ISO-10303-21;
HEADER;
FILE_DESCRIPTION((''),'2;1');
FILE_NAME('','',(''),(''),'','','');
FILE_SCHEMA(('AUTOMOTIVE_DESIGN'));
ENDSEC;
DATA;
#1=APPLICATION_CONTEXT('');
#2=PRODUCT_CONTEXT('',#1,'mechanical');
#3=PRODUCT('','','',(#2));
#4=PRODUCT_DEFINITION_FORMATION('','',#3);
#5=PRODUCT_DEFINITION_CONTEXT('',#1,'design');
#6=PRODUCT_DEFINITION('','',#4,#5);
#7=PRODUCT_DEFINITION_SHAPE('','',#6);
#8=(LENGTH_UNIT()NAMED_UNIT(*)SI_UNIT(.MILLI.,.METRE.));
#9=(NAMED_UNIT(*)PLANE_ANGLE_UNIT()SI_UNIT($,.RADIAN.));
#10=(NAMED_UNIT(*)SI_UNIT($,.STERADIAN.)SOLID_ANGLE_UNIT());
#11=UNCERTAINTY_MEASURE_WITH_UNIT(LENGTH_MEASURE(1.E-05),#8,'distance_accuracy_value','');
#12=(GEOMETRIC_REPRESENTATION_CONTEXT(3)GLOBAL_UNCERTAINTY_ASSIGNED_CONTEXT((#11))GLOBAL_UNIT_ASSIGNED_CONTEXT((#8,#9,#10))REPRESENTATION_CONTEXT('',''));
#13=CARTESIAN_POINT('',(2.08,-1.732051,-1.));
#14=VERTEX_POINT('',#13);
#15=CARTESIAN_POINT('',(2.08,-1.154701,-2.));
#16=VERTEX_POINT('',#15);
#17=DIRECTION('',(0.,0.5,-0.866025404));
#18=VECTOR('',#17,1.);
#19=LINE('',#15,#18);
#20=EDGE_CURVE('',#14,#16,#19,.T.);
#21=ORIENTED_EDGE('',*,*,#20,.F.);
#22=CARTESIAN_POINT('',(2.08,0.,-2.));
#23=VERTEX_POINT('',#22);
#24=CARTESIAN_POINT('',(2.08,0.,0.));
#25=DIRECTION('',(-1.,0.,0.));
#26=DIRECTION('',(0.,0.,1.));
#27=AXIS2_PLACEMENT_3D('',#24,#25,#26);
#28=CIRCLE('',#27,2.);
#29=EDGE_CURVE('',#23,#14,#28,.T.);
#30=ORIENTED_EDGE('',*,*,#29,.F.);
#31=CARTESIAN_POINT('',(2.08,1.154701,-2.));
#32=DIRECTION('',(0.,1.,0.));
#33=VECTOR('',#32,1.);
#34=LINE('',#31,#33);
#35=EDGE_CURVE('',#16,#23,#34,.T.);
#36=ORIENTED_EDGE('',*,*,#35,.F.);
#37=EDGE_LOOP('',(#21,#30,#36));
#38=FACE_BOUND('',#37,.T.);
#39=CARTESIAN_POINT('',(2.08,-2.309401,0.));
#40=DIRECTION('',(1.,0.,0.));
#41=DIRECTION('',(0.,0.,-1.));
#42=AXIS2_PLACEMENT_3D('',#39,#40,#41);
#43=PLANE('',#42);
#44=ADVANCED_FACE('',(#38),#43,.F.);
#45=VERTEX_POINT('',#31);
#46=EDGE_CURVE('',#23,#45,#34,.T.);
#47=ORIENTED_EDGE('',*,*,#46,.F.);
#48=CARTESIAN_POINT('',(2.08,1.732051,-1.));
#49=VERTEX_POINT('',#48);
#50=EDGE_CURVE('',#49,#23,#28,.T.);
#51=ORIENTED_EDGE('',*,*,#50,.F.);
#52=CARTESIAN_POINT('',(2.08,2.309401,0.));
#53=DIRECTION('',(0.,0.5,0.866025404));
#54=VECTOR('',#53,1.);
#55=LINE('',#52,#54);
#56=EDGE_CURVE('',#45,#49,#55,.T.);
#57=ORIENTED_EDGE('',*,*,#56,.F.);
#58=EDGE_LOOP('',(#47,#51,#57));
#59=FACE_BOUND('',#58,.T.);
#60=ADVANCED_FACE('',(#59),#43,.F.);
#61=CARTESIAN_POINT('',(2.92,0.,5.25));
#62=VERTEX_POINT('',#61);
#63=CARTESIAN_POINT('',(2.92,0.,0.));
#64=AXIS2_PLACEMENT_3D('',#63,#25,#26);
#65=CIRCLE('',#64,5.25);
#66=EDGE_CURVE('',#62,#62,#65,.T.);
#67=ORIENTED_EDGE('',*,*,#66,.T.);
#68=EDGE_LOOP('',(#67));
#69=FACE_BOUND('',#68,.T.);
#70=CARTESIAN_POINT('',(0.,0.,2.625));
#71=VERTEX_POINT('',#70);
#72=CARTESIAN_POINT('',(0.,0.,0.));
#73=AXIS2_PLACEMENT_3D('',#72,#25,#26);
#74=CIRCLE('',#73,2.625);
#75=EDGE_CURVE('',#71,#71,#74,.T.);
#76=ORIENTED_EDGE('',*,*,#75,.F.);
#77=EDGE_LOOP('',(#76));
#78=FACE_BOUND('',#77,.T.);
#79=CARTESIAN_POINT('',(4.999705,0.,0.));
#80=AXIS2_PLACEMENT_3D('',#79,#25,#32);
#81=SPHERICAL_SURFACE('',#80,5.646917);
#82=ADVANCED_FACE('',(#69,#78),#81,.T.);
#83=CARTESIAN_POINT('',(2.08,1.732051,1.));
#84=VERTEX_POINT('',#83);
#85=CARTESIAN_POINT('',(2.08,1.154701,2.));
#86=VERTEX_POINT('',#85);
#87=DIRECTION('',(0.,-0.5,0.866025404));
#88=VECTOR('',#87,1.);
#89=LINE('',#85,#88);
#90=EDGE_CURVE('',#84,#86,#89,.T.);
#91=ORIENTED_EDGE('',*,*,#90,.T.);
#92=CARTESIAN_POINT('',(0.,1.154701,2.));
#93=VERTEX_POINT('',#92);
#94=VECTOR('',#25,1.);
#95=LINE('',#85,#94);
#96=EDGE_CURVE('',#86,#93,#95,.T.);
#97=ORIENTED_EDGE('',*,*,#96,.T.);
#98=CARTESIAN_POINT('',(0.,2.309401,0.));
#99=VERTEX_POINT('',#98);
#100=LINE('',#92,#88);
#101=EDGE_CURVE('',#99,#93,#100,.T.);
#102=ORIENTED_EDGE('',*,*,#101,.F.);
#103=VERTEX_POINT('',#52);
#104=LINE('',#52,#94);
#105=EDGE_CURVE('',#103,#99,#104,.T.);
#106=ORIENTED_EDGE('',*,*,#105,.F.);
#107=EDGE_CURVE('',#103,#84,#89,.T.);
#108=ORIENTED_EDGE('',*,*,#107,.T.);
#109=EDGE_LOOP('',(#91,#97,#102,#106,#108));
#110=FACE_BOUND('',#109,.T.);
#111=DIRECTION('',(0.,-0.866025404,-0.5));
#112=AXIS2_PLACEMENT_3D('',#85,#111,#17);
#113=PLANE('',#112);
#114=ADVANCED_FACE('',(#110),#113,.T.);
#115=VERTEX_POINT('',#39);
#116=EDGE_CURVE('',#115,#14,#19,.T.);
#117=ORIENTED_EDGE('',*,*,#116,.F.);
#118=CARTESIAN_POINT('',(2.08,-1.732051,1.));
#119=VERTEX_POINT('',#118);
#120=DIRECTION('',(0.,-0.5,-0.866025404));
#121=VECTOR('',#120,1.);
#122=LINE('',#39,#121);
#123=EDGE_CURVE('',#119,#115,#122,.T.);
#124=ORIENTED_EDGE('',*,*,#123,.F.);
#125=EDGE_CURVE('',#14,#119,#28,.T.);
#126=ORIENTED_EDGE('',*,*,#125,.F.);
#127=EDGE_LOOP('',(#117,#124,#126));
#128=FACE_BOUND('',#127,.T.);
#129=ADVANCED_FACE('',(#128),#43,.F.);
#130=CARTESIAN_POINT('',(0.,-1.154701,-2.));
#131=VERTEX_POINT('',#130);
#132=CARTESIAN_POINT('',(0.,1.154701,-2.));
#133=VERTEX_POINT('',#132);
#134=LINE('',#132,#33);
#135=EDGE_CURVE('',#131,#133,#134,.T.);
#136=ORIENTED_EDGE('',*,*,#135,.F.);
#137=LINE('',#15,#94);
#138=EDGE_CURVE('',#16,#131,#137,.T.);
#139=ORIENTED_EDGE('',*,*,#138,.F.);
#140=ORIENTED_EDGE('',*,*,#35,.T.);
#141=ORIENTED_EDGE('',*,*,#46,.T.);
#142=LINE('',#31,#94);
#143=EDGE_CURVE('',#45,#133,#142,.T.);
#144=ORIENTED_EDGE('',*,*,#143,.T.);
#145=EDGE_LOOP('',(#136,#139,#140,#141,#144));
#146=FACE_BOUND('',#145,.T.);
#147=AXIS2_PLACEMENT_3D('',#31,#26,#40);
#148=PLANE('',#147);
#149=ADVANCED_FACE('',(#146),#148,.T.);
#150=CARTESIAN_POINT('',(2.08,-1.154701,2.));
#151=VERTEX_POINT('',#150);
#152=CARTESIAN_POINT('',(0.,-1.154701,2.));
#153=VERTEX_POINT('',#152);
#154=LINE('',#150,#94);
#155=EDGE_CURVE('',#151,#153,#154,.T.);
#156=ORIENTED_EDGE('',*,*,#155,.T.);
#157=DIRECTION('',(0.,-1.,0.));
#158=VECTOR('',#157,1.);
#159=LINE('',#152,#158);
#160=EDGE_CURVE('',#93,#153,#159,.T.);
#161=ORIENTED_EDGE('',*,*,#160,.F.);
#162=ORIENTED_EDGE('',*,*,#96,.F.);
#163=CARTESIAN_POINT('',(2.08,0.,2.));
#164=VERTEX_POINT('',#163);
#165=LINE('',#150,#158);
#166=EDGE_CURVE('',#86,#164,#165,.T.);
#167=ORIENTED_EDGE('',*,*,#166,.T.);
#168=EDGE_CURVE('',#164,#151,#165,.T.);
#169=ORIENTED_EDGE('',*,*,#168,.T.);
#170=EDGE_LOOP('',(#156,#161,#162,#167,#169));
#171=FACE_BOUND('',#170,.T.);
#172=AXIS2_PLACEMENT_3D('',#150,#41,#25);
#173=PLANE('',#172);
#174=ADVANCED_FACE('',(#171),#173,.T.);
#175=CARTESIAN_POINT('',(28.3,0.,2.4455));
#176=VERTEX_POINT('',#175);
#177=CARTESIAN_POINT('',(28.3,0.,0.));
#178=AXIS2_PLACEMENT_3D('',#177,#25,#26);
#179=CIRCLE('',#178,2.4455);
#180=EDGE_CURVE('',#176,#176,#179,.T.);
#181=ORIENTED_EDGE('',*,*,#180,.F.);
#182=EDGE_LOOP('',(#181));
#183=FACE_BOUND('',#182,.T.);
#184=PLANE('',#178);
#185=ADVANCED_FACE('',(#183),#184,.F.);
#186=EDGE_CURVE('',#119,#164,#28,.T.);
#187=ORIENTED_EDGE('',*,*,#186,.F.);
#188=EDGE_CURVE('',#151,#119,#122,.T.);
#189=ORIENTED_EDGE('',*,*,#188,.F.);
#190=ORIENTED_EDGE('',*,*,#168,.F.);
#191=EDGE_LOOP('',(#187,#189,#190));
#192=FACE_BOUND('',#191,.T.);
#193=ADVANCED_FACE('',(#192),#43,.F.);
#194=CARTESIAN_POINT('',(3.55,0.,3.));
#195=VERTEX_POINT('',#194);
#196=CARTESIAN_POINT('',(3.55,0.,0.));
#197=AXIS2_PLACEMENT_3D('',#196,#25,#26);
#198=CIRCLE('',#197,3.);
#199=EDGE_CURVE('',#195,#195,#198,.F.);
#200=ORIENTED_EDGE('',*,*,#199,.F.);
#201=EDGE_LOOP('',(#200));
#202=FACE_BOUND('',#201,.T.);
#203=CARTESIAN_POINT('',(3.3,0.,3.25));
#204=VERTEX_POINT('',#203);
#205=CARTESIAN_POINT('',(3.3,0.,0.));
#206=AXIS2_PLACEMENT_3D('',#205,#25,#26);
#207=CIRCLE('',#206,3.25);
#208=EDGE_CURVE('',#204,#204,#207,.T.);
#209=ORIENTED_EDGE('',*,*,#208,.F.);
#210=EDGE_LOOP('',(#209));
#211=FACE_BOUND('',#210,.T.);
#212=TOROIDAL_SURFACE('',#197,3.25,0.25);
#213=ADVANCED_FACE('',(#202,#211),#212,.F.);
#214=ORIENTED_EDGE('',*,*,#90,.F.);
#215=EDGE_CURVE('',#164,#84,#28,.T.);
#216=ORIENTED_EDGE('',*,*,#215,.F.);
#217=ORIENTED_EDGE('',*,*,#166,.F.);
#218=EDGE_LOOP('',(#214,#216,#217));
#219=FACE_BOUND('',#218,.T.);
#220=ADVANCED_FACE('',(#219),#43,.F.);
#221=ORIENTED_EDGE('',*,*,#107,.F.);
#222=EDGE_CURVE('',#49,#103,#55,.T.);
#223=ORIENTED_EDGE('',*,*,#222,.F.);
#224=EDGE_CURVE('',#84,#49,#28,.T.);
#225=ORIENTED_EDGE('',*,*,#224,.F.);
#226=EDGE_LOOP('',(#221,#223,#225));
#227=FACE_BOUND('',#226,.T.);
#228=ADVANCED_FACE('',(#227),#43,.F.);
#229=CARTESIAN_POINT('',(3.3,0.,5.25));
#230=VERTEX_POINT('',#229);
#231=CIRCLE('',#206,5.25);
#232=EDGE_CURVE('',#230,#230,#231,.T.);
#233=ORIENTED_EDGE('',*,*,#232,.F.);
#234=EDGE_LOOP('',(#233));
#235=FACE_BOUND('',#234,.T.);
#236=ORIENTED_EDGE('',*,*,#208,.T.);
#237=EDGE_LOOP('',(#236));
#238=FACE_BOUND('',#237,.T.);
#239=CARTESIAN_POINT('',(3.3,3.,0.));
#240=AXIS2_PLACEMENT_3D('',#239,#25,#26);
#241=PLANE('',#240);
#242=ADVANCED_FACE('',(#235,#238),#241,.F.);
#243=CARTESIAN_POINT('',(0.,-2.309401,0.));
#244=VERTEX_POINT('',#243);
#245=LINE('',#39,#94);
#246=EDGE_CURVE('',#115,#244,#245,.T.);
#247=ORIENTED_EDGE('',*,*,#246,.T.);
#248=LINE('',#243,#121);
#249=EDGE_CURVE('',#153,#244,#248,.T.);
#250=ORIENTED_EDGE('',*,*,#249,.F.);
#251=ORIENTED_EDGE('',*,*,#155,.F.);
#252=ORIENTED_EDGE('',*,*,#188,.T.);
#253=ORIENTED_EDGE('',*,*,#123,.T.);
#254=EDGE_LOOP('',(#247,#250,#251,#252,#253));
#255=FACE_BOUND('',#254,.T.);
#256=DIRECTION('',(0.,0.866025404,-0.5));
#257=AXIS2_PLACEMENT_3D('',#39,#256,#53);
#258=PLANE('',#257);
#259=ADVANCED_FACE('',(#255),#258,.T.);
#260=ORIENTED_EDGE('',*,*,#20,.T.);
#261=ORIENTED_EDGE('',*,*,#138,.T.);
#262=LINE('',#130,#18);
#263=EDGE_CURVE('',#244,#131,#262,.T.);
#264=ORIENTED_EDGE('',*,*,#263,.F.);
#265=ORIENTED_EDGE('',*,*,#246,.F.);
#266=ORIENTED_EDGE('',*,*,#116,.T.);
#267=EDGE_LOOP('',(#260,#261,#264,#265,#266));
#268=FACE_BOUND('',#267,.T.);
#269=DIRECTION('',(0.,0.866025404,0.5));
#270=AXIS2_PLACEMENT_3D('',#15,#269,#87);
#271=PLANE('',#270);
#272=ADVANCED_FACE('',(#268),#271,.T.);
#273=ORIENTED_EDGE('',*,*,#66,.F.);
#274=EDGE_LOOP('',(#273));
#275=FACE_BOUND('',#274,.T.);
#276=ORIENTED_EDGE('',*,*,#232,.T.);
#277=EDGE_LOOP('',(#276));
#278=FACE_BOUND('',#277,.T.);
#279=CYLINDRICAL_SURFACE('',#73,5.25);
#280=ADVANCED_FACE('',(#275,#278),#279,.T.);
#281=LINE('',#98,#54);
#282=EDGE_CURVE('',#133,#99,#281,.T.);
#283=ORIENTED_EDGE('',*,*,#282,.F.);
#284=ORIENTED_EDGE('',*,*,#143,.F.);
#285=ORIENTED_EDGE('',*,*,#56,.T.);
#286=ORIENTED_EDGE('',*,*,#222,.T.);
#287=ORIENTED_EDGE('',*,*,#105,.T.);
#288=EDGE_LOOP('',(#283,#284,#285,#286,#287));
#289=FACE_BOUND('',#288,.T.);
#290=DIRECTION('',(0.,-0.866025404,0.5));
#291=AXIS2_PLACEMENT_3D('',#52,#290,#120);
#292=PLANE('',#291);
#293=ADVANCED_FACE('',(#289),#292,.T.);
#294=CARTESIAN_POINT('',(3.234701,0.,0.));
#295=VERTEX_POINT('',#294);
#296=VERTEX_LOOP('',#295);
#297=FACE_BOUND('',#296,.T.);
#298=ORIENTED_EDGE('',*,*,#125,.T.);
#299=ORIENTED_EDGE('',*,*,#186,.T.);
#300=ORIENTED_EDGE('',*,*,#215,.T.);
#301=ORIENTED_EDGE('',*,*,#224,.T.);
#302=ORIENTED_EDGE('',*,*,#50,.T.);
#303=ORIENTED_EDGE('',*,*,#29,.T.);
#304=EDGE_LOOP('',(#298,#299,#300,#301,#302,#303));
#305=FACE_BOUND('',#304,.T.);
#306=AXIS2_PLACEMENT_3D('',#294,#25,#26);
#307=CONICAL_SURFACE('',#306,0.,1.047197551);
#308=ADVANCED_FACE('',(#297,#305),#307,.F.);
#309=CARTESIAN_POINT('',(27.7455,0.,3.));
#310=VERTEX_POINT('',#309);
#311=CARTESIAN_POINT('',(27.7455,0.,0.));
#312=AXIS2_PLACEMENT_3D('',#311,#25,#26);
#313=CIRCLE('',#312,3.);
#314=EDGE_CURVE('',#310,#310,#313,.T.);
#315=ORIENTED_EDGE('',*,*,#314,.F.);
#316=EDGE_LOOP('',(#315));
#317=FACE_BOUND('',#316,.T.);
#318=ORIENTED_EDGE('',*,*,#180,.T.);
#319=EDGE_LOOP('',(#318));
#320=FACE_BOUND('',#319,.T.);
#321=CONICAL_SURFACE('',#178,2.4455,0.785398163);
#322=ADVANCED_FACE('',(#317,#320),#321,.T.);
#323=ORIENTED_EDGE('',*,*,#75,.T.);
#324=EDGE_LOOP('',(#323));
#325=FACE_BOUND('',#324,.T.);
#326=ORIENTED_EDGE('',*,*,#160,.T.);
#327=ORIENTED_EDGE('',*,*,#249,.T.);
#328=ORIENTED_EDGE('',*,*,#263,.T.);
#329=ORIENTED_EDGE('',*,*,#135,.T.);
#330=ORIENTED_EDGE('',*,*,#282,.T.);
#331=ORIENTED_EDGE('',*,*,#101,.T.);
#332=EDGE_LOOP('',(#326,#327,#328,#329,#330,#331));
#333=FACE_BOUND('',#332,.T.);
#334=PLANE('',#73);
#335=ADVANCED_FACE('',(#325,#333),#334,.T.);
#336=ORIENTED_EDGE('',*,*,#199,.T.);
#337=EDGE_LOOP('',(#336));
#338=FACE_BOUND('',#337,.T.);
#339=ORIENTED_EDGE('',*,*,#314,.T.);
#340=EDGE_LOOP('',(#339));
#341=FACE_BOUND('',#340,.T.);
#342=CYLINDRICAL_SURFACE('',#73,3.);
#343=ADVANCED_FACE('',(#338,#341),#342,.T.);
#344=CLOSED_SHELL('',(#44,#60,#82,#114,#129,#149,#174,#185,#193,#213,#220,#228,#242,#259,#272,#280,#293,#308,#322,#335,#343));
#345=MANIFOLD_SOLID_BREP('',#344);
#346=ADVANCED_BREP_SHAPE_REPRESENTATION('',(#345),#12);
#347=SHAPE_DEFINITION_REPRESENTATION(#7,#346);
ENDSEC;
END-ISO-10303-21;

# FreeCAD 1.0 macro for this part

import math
import FreeCAD as App
import Part
import Sketcher

V = App.Vector
Q = App.Units.Quantity


def edges_at(feature, points):
    """Names of the edges that pass closest to the given points."""
    edges = feature.Shape.Edges
    near = lambda p: min(range(len(edges)), key=lambda i: edges[i].distToShape(Part.Vertex(*p))[0])
    return sorted({f"Edge{near(p) + 1}" for p in points})

doc = App.newDocument("Part")
body = doc.addObject("PartDesign::Body", "Body")

# Sketch on XY plane
sketch1 = body.newObject("Sketcher::SketchObject", "Sketch")
sketch1.AttachmentSupport = (doc.getObject("XY_Plane"), [""])
sketch1.MapMode = "FlatFace"
sketch1.addGeometry(Part.LineSegment(V(28.3, 0, 0), V(28.3, 2.45, 0)), False)
sketch1.addGeometry(Part.LineSegment(V(28.3, 2.45, 0), V(27.75, 3, 0)), False)
sketch1.addGeometry(Part.LineSegment(V(27.75, 3, 0), V(3.3, 3, 0)), False)
sketch1.addGeometry(Part.LineSegment(V(3.3, 3, 0), V(3.3, 5.25, 0)), False)
sketch1.addGeometry(Part.LineSegment(V(3.3, 5.25, 0), V(2.92, 5.25, 0)), False)
sketch1.addGeometry(Part.ArcOfCircle(Part.Circle(V(5, 0, 0), V(0, 0, 1), 5.65), math.radians(112), math.radians(152)), False)
sketch1.addGeometry(Part.LineSegment(V(0, 2.62, 0), V(0, 0, 0)), False)
sketch1.addGeometry(Part.LineSegment(V(0, 0, 0), V(28.3, 0, 0)), False)
sketch1.addConstraint(Sketcher.Constraint("Coincident", 0, 2, 1, 1))
sketch1.addConstraint(Sketcher.Constraint("Coincident", 1, 2, 2, 1))
sketch1.addConstraint(Sketcher.Constraint("Coincident", 2, 2, 3, 1))
sketch1.addConstraint(Sketcher.Constraint("Coincident", 3, 2, 4, 1))
sketch1.addConstraint(Sketcher.Constraint("Coincident", 4, 2, 5, 1))
sketch1.addConstraint(Sketcher.Constraint("Coincident", 5, 2, 6, 1))
sketch1.addConstraint(Sketcher.Constraint("Coincident", 6, 2, 7, 1))
sketch1.addConstraint(Sketcher.Constraint("Coincident", 7, 2, 0, 1))
sketch1.addConstraint(Sketcher.Constraint("Vertical", 0))
sketch1.addConstraint(Sketcher.Constraint("Horizontal", 2))
sketch1.addConstraint(Sketcher.Constraint("Vertical", 3))
sketch1.addConstraint(Sketcher.Constraint("Horizontal", 4))
sketch1.addConstraint(Sketcher.Constraint("Vertical", 6))
sketch1.addConstraint(Sketcher.Constraint("Horizontal", 7))
sketch1.addConstraint(Sketcher.Constraint("Coincident", 6, 2, -1, 1))
sketch1.addConstraint(Sketcher.Constraint("PointOnObject", 5, 3, -1))
sketch1.addConstraint(Sketcher.Constraint("Angle", 1, Q("135 deg")))
sketch1.addConstraint(Sketcher.Constraint("DistanceX", 7, 1, 7, 2, Q("28.3 mm")))
sketch1.addConstraint(Sketcher.Constraint("DistanceY", -1, 1, 1, 2, Q("3 mm")))
sketch1.addConstraint(Sketcher.Constraint("DistanceX", 2, 2, 0, 2, Q("25 mm")))
sketch1.addConstraint(Sketcher.Constraint("DistanceX", 4, 2, 4, 1, Q("0.38 mm")))
sketch1.addConstraint(Sketcher.Constraint("DistanceY", 3, 1, 3, 2, Q("2.25 mm")))
sketch1.addConstraint(Sketcher.Constraint("DistanceY", 6, 2, 6, 1, Q("2.625 mm")))
sketch1.addConstraint(Sketcher.Constraint("DistanceX", 2, 2, 2, 1, Q("24.4455 mm")))
revolution = body.newObject("PartDesign::Revolution", "Revolution")
revolution.Profile = sketch1
revolution.ReferenceAxis = (sketch1, ["H_Axis"])
revolution.Angle = 360
doc.recompute()

fillet = body.newObject("PartDesign::Fillet", "Fillet")
fillet.Base = (revolution, edges_at(revolution, [(3.3, -3, 0)]))
fillet.Radius = 0.25

# Sketch on XY plane
sketch2 = body.newObject("Sketcher::SketchObject", "Sketch001")
sketch2.AttachmentSupport = (doc.getObject("XY_Plane"), [""])
sketch2.MapMode = "FlatFace"
sketch2.addGeometry(Part.LineSegment(V(2.1, 2, 0), V(0, 2, 0)), False)
sketch2.addGeometry(Part.LineSegment(V(0, 2, 0), V(0, 0, 0)), False)
sketch2.addGeometry(Part.LineSegment(V(0, 0, 0), V(3.2, 0, 0)), False)
sketch2.addGeometry(Part.LineSegment(V(3.2, 0, 0), V(2.1, 2, 0)), False)
sketch2.addConstraint(Sketcher.Constraint("Coincident", 0, 2, 1, 1))
sketch2.addConstraint(Sketcher.Constraint("Coincident", 1, 2, 2, 1))
sketch2.addConstraint(Sketcher.Constraint("Coincident", 2, 2, 3, 1))
sketch2.addConstraint(Sketcher.Constraint("Coincident", 3, 2, 0, 1))
sketch2.addConstraint(Sketcher.Constraint("Horizontal", 0))
sketch2.addConstraint(Sketcher.Constraint("Vertical", 1))
sketch2.addConstraint(Sketcher.Constraint("Horizontal", 2))
sketch2.addConstraint(Sketcher.Constraint("Coincident", 1, 2, -1, 1))
sketch2.addConstraint(Sketcher.Constraint("DistanceY", 1, 2, 1, 1, Q("2 mm")))
sketch2.addConstraint(Sketcher.Constraint("Angle", 3, Q("120 deg")))
sketch2.addConstraint(Sketcher.Constraint("DistanceX", 0, 2, 0, 1, Q("2.08 mm")))
groove = body.newObject("PartDesign::Groove", "Groove")
groove.Profile = sketch2
groove.ReferenceAxis = (sketch2, ["H_Axis"])
groove.Angle = 360

# Sketch on YZ plane
sketch3 = body.newObject("Sketcher::SketchObject", "Sketch002")
sketch3.AttachmentSupport = (doc.getObject("YZ_Plane"), [""])
sketch3.MapMode = "FlatFace"
sketch3.addGeometry(Part.LineSegment(V(1.2, 2, 0), V(-1.2, 2, 0)), False)
sketch3.addGeometry(Part.LineSegment(V(-1.2, 2, 0), V(-2.3, 0, 0)), False)
sketch3.addGeometry(Part.LineSegment(V(-2.3, 0, 0), V(-1.2, -2, 0)), False)
sketch3.addGeometry(Part.LineSegment(V(-1.2, -2, 0), V(1.2, -2, 0)), False)
sketch3.addGeometry(Part.LineSegment(V(1.2, -2, 0), V(2.3, 0, 0)), False)
sketch3.addGeometry(Part.LineSegment(V(2.3, 0, 0), V(1.2, 2, 0)), False)
sketch3.addConstraint(Sketcher.Constraint("Coincident", 0, 2, 1, 1))
sketch3.addConstraint(Sketcher.Constraint("Coincident", 1, 2, 2, 1))
sketch3.addConstraint(Sketcher.Constraint("Coincident", 2, 2, 3, 1))
sketch3.addConstraint(Sketcher.Constraint("Coincident", 3, 2, 4, 1))
sketch3.addConstraint(Sketcher.Constraint("Coincident", 4, 2, 5, 1))
sketch3.addConstraint(Sketcher.Constraint("Coincident", 5, 2, 0, 1))
sketch3.addConstraint(Sketcher.Constraint("Horizontal", 0))
sketch3.addConstraint(Sketcher.Constraint("Horizontal", 3))
sketch3.addConstraint(Sketcher.Constraint("Symmetric", 0, 2, 3, 2, -1, 1))
sketch3.addConstraint(Sketcher.Constraint("Symmetric", 1, 2, 4, 2, -1, 1))
sketch3.addConstraint(Sketcher.Constraint("PointOnObject", 1, 2, -1))
sketch3.addConstraint(Sketcher.Constraint("Parallel", 2, 5))
sketch3.addConstraint(Sketcher.Constraint("Vertical", 0, 2, 2, 2))
sketch3.addConstraint(Sketcher.Constraint("Angle", 1, Q("-120 deg")))
sketch3.addConstraint(Sketcher.Constraint("DistanceY", -1, 1, 0, 2, Q("2 mm")))
sketch3.addConstraint(Sketcher.Constraint("DistanceX", 0, 2, 0, 1, Q("2.309401 mm")))
pocket1 = body.newObject("PartDesign::Pocket", "Pocket")
pocket1.Profile = sketch3
pocket1.Length = 2.08
pocket1.Reversed = True

doc.recompute()
